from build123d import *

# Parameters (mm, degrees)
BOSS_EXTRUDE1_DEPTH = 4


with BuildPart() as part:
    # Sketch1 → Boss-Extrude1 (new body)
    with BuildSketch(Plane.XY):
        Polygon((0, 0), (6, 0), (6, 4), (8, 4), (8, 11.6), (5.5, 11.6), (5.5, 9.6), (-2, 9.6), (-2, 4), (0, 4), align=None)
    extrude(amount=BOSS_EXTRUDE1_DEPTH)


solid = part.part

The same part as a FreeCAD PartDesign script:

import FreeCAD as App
import Part
import Sketcher

V = App.Vector
Q = App.Units.Quantity

doc = App.newDocument("Part")
body = doc.addObject("PartDesign::Body", "Body")

sketch1 = doc.addObject("Sketcher::SketchObject", "Sketch")
body.addObject(sketch1)
sketch1.AttachmentSupport = (doc.XY_Plane, [""])
sketch1.MapMode = "FlatFace"
sketch1.addGeometry(Part.LineSegment(V(0, 0, 0), V(6, 0, 0)), False)
sketch1.addGeometry(Part.LineSegment(V(6, 0, 0), V(6, 4, 0)), False)
sketch1.addGeometry(Part.LineSegment(V(6, 4, 0), V(8, 4, 0)), False)
sketch1.addGeometry(Part.LineSegment(V(8, 4, 0), V(8, 11.6, 0)), False)
sketch1.addGeometry(Part.LineSegment(V(8, 11.6, 0), V(5.5, 11.6, 0)), False)
sketch1.addGeometry(Part.LineSegment(V(5.5, 11.6, 0), V(5.5, 9.6, 0)), False)
sketch1.addGeometry(Part.LineSegment(V(5.5, 9.6, 0), V(-2, 9.6, 0)), False)
sketch1.addGeometry(Part.LineSegment(V(-2, 9.6, 0), V(-2, 4, 0)), False)
sketch1.addGeometry(Part.LineSegment(V(-2, 4, 0), V(0, 4, 0)), False)
sketch1.addGeometry(Part.LineSegment(V(0, 4, 0), V(0, 0, 0)), False)
sketch1.addConstraint(Sketcher.Constraint("Coincident", 0, 2, 1, 1))
sketch1.addConstraint(Sketcher.Constraint("Coincident", 1, 2, 2, 1))
sketch1.addConstraint(Sketcher.Constraint("Coincident", 2, 2, 3, 1))
sketch1.addConstraint(Sketcher.Constraint("Coincident", 3, 2, 4, 1))
sketch1.addConstraint(Sketcher.Constraint("Coincident", 4, 2, 5, 1))
sketch1.addConstraint(Sketcher.Constraint("Coincident", 5, 2, 6, 1))
sketch1.addConstraint(Sketcher.Constraint("Coincident", 6, 2, 7, 1))
sketch1.addConstraint(Sketcher.Constraint("Coincident", 7, 2, 8, 1))
sketch1.addConstraint(Sketcher.Constraint("Coincident", 8, 2, 9, 1))
sketch1.addConstraint(Sketcher.Constraint("Coincident", 9, 2, 0, 1))
sketch1.addConstraint(Sketcher.Constraint("Horizontal", 0))
sketch1.addConstraint(Sketcher.Constraint("Vertical", 1))
sketch1.addConstraint(Sketcher.Constraint("Horizontal", 2))
sketch1.addConstraint(Sketcher.Constraint("Vertical", 3))
sketch1.addConstraint(Sketcher.Constraint("Horizontal", 4))
sketch1.addConstraint(Sketcher.Constraint("Vertical", 5))
sketch1.addConstraint(Sketcher.Constraint("Horizontal", 6))
sketch1.addConstraint(Sketcher.Constraint("Vertical", 7))
sketch1.addConstraint(Sketcher.Constraint("Horizontal", 8))
sketch1.addConstraint(Sketcher.Constraint("Vertical", 9))
sketch1.addConstraint(Sketcher.Constraint("Coincident", 9, 2, -1, 1))
sketch1.addConstraint(Sketcher.Constraint("Horizontal", 2, 2, 7, 2))
sketch1.addConstraint(Sketcher.Constraint("Equal", 2, 8))
sketch1.addConstraint(Sketcher.Constraint("Equal", 8, 5))
sketch1.addConstraint(Sketcher.Constraint("DistanceX", 0, 1, 0, 2, Q("6 mm")))
sketch1.addConstraint(Sketcher.Constraint("DistanceX", 2, 1, 2, 2, Q("2 mm")))
sketch1.addConstraint(Sketcher.Constraint("DistanceY", 1, 1, 1, 2, Q("4 mm")))
sketch1.addConstraint(Sketcher.Constraint("DistanceX", 4, 2, 4, 1, Q("2.5 mm")))
sketch1.addConstraint(Sketcher.Constraint("DistanceY", 3, 1, 3, 2, Q("7.6 mm")))
pad1 = doc.addObject("PartDesign::Pad", "Pad")
body.addObject(pad1)
pad1.Profile = sketch1
pad1.Length = 4

doc.recompute()
